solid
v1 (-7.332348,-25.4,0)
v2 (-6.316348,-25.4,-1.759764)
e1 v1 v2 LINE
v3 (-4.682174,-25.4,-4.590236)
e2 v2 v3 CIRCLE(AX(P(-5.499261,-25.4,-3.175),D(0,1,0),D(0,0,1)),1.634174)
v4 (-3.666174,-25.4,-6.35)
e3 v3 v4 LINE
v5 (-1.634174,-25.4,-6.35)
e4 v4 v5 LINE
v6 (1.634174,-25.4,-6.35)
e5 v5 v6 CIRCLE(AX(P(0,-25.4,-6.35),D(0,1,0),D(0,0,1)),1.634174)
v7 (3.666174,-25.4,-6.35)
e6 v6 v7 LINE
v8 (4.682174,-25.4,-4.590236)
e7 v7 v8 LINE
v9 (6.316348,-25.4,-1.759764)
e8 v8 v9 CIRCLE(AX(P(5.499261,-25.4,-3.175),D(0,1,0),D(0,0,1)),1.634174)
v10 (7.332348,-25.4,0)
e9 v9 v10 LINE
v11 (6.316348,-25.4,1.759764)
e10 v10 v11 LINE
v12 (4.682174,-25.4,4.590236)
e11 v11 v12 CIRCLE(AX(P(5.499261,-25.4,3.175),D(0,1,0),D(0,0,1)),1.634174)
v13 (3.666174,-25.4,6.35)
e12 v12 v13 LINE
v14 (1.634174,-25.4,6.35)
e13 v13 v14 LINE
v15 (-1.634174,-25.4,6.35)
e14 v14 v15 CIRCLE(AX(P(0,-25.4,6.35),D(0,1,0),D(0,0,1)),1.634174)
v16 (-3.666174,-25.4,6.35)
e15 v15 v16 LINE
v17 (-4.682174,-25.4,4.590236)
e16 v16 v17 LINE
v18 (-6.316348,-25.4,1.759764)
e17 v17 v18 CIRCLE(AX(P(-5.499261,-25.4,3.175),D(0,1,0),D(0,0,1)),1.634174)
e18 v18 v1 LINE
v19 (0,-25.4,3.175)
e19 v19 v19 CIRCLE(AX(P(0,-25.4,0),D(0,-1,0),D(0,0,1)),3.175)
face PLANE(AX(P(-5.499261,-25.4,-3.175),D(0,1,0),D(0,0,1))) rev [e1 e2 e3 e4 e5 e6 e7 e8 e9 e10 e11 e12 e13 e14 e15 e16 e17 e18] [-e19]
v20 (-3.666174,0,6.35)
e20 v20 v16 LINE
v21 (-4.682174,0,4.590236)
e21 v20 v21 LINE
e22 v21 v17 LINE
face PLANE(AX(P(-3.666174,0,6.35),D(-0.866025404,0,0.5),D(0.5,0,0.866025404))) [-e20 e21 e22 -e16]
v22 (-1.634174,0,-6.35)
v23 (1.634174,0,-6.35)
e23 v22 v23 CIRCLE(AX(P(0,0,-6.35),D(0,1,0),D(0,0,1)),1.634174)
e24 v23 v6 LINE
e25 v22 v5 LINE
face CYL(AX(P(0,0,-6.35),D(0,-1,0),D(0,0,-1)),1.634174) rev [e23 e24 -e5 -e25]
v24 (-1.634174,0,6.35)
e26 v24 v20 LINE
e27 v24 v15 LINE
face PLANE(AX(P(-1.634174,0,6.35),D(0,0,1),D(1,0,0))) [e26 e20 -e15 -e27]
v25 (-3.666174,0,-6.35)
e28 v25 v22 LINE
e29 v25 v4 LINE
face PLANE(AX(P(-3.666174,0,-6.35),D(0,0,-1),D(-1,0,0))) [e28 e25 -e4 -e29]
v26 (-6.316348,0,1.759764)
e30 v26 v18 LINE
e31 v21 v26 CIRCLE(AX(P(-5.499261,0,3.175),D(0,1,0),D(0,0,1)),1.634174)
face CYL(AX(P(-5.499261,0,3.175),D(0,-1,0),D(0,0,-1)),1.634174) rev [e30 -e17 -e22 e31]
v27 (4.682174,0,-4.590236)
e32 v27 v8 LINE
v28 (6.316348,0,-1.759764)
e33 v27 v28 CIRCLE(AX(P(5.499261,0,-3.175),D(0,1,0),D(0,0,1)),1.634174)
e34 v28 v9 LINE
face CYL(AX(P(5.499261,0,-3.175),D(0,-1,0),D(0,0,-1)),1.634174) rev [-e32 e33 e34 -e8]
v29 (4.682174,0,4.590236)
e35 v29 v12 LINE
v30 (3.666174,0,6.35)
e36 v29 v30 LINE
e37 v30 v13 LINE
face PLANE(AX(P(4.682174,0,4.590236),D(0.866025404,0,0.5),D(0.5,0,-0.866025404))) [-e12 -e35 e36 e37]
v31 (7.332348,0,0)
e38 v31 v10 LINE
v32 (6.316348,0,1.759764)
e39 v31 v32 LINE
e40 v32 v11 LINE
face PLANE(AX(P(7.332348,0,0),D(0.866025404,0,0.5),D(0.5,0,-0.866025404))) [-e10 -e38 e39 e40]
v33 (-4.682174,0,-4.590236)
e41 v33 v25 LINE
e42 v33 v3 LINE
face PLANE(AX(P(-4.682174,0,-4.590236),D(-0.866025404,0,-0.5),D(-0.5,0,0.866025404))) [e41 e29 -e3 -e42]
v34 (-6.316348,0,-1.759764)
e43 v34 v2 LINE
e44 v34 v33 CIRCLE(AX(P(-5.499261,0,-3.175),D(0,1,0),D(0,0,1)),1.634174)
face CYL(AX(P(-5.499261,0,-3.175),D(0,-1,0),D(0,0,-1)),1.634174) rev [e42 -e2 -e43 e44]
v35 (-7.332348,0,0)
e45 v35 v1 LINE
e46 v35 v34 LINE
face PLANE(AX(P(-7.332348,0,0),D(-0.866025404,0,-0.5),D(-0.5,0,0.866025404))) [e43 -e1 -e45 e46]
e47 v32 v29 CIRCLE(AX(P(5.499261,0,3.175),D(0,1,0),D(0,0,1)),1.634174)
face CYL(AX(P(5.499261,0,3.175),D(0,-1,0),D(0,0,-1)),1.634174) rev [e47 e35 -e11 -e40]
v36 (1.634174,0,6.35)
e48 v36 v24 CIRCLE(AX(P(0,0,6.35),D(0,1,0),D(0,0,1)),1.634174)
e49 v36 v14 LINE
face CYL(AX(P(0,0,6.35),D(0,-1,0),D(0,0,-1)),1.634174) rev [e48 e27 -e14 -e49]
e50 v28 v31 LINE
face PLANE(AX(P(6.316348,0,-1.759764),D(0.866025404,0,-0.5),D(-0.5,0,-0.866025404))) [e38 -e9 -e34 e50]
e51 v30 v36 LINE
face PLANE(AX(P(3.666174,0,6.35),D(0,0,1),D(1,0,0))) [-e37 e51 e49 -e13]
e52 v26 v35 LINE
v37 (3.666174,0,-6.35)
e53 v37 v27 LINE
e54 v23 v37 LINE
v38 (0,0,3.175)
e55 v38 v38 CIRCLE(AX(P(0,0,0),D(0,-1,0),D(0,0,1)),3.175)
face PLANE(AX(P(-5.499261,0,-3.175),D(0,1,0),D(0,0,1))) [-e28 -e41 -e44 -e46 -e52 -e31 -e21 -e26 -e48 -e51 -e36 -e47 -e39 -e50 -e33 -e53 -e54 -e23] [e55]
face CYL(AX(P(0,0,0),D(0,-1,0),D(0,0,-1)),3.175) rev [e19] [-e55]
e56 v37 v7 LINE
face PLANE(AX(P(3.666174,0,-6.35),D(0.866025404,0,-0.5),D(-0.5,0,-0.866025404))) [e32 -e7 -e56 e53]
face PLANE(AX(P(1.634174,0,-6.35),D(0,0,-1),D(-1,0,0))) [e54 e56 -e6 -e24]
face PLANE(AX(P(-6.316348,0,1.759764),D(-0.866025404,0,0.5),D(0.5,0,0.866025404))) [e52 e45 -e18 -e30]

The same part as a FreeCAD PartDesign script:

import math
import FreeCAD as App
import Part
import Sketcher
from FreeCAD import Vector
Q = App.Units.Quantity

doc = App.newDocument("Part")
body = doc.addObject("PartDesign::Body", "Body")

# Sketch on XZ plane
sketch1 = body.newObject("Sketcher::SketchObject", "Sketch")
sketch1.AttachmentSupport = (doc.getObject("XZ_Plane"), [""])
sketch1.MapMode = "FlatFace"
sketch1.AttachmentOffset = App.Placement(Vector(0, 0, 1 * 25.4), App.Rotation())
sketch1.addGeometry(Part.LineSegment(Vector(-4.7, -4.6, 0), Vector(-3.7, -6.3, 0)), False)
sketch1.addGeometry(Part.LineSegment(Vector(-3.7, -6.3, 0), Vector(-1.6, -6.3, 0)), False)
sketch1.addGeometry(Part.ArcOfCircle(Part.Circle(Vector(0, -6.3, 0), Vector(0, 0, 1), 1.6), math.radians(0), math.radians(180)), False)
sketch1.addGeometry(Part.LineSegment(Vector(1.6, -6.3, 0), Vector(3.7, -6.3, 0)), False)
sketch1.addGeometry(Part.LineSegment(Vector(3.7, -6.3, 0), Vector(4.7, -4.6, 0)), False)
sketch1.addGeometry(Part.ArcOfCircle(Part.Circle(Vector(5.5, -3.2, 0), Vector(0, 0, 1), 1.6), math.radians(60), math.radians(240)), False)
sketch1.addGeometry(Part.LineSegment(Vector(6.3, -1.8, 0), Vector(7.3, 0, 0)), False)
sketch1.addGeometry(Part.LineSegment(Vector(7.3, 0, 0), Vector(6.3, 1.8, 0)), False)
sketch1.addGeometry(Part.ArcOfCircle(Part.Circle(Vector(5.5, 3.2, 0), Vector(0, 0, 1), 1.6), math.radians(120), math.radians(300)), False)
sketch1.addGeometry(Part.LineSegment(Vector(4.7, 4.6, 0), Vector(3.7, 6.3, 0)), False)
sketch1.addGeometry(Part.LineSegment(Vector(3.7, 6.3, 0), Vector(1.6, 6.3, 0)), False)
sketch1.addGeometry(Part.ArcOfCircle(Part.Circle(Vector(0, 6.3, 0), Vector(0, 0, 1), 1.6), math.radians(180), math.radians(360)), False)
sketch1.addGeometry(Part.LineSegment(Vector(-1.6, 6.3, 0), Vector(-3.7, 6.3, 0)), False)
sketch1.addGeometry(Part.LineSegment(Vector(-3.7, 6.3, 0), Vector(-4.7, 4.6, 0)), False)
sketch1.addGeometry(Part.ArcOfCircle(Part.Circle(Vector(-5.5, 3.2, 0), Vector(0, 0, 1), 1.6), math.radians(-120), math.radians(60)), False)
sketch1.addGeometry(Part.LineSegment(Vector(-6.3, 1.8, 0), Vector(-7.3, 0, 0)), False)
sketch1.addGeometry(Part.LineSegment(Vector(-7.3, 0, 0), Vector(-6.3, -1.8, 0)), False)
sketch1.addGeometry(Part.ArcOfCircle(Part.Circle(Vector(-5.5, -3.2, 0), Vector(0, 0, 1), 1.6), math.radians(-60), math.radians(120)), False)
sketch1.addGeometry(Part.Circle(Vector(0, 0, 0), Vector(0, 0, 1), 3.2), False)
sketch1.addConstraint(Sketcher.Constraint("Coincident", 0, 2, 1, 1))
sketch1.addConstraint(Sketcher.Constraint("Coincident", 1, 2, 2, 2))
sketch1.addConstraint(Sketcher.Constraint("Coincident", 2, 1, 3, 1))
sketch1.addConstraint(Sketcher.Constraint("Coincident", 3, 2, 4, 1))
sketch1.addConstraint(Sketcher.Constraint("Coincident", 4, 2, 5, 2))
sketch1.addConstraint(Sketcher.Constraint("Coincident", 5, 1, 6, 1))
sketch1.addConstraint(Sketcher.Constraint("Coincident", 6, 2, 7, 1))
sketch1.addConstraint(Sketcher.Constraint("Coincident", 7, 2, 8, 2))
sketch1.addConstraint(Sketcher.Constraint("Coincident", 8, 1, 9, 1))
sketch1.addConstraint(Sketcher.Constraint("Coincident", 9, 2, 10, 1))
sketch1.addConstraint(Sketcher.Constraint("Coincident", 10, 2, 11, 2))
sketch1.addConstraint(Sketcher.Constraint("Coincident", 11, 1, 12, 1))
sketch1.addConstraint(Sketcher.Constraint("Coincident", 12, 2, 13, 1))
sketch1.addConstraint(Sketcher.Constraint("Coincident", 13, 2, 14, 2))
sketch1.addConstraint(Sketcher.Constraint("Coincident", 14, 1, 15, 1))
sketch1.addConstraint(Sketcher.Constraint("Coincident", 15, 2, 16, 1))
sketch1.addConstraint(Sketcher.Constraint("Coincident", 16, 2, 17, 2))
sketch1.addConstraint(Sketcher.Constraint("Coincident", 17, 1, 0, 1))
sketch1.addConstraint(Sketcher.Constraint("Horizontal", 1))
sketch1.addConstraint(Sketcher.Constraint("Horizontal", 3))
sketch1.addConstraint(Sketcher.Constraint("Horizontal", 10))
sketch1.addConstraint(Sketcher.Constraint("Horizontal", 12))
sketch1.addConstraint(Sketcher.Constraint("Coincident", 18, 3, -1, 1))
sketch1.addConstraint(Sketcher.Constraint("Equal", 2, 5))
sketch1.addConstraint(Sketcher.Constraint("Equal", 5, 8))
sketch1.addConstraint(Sketcher.Constraint("Equal", 8, 11))
sketch1.addConstraint(Sketcher.Constraint("Equal", 11, 14))
sketch1.addConstraint(Sketcher.Constraint("Equal", 14, 17))
sketch1.addConstraint(Sketcher.Constraint("Symmetric", 2, 3, 11, 3, -1, 1))
sketch1.addConstraint(Sketcher.Constraint("Symmetric", 5, 3, 14, 3, -1, 1))
sketch1.addConstraint(Sketcher.Constraint("Symmetric", 8, 3, 17, 3, -1, 1))
sketch1.addConstraint(Sketcher.Constraint("Symmetric", 0, 2, 9, 2, -1, 1))
sketch1.addConstraint(Sketcher.Constraint("Symmetric", 3, 2, 12, 2, -1, 1))
sketch1.addConstraint(Sketcher.Constraint("Symmetric", 6, 2, 15, 2, -1, 1))
sketch1.addConstraint(Sketcher.Constraint("Symmetric", 8, 3, 14, 3, -2))
sketch1.addConstraint(Sketcher.Constraint("Symmetric", 1, 2, 2, 1, -2))
sketch1.addConstraint(Sketcher.Constraint("PointOnObject", 6, 2, -1))
sketch1.addConstraint(Sketcher.Constraint("Parallel", 4, 6))
sketch1.addConstraint(Sketcher.Constraint("Parallel", 0, 7))
sketch1.addConstraint(Sketcher.Constraint("Parallel", 7, 9))
sketch1.addConstraint(Sketcher.Constraint("Parallel", 6, 13))
sketch1.addConstraint(Sketcher.Constraint("Parallel", 13, 15))
sketch1.addConstraint(Sketcher.Constraint("Parallel", 9, 16))
sketch1.addConstraint(Sketcher.Constraint("Horizontal", 2, 3, 0, 2))
sketch1.addConstraint(Sketcher.Constraint("Horizontal", 8, 1, 13, 2))
sketch1.addConstraint(Sketcher.Constraint("Horizontal", 7, 2, 14, 1))
sketch1.addConstraint(Sketcher.Constraint("Equal", 4, 6))
sketch1.addConstraint(Sketcher.Constraint("Diameter", 18, Q("0.25 in")))
sketch1.addConstraint(Sketcher.Constraint("Angle", 0, Q("-60 deg")))
sketch1.addConstraint(Sketcher.Constraint("DistanceX", 1, 1, 1, 2, Q("0.08 in")))
sketch1.addConstraint(Sketcher.Constraint("DistanceY", 2, 3, 11, 3, Q("0.5 in")))
sketch1.addConstraint(Sketcher.Constraint("Distance", 0, Q("0.08 in")))
sketch1.addConstraint(Sketcher.Constraint("DistanceY", 5, 3, 8, 3, Q("0.25 in")))
sketch1.addConstraint(Sketcher.Constraint("Radius", 2, 1.634174))
pad1 = body.newObject("PartDesign::Pad", "Pad")
pad1.Profile = sketch1
pad1.Length = Q("1 in")
pad1.Reversed = True

doc.recompute()
